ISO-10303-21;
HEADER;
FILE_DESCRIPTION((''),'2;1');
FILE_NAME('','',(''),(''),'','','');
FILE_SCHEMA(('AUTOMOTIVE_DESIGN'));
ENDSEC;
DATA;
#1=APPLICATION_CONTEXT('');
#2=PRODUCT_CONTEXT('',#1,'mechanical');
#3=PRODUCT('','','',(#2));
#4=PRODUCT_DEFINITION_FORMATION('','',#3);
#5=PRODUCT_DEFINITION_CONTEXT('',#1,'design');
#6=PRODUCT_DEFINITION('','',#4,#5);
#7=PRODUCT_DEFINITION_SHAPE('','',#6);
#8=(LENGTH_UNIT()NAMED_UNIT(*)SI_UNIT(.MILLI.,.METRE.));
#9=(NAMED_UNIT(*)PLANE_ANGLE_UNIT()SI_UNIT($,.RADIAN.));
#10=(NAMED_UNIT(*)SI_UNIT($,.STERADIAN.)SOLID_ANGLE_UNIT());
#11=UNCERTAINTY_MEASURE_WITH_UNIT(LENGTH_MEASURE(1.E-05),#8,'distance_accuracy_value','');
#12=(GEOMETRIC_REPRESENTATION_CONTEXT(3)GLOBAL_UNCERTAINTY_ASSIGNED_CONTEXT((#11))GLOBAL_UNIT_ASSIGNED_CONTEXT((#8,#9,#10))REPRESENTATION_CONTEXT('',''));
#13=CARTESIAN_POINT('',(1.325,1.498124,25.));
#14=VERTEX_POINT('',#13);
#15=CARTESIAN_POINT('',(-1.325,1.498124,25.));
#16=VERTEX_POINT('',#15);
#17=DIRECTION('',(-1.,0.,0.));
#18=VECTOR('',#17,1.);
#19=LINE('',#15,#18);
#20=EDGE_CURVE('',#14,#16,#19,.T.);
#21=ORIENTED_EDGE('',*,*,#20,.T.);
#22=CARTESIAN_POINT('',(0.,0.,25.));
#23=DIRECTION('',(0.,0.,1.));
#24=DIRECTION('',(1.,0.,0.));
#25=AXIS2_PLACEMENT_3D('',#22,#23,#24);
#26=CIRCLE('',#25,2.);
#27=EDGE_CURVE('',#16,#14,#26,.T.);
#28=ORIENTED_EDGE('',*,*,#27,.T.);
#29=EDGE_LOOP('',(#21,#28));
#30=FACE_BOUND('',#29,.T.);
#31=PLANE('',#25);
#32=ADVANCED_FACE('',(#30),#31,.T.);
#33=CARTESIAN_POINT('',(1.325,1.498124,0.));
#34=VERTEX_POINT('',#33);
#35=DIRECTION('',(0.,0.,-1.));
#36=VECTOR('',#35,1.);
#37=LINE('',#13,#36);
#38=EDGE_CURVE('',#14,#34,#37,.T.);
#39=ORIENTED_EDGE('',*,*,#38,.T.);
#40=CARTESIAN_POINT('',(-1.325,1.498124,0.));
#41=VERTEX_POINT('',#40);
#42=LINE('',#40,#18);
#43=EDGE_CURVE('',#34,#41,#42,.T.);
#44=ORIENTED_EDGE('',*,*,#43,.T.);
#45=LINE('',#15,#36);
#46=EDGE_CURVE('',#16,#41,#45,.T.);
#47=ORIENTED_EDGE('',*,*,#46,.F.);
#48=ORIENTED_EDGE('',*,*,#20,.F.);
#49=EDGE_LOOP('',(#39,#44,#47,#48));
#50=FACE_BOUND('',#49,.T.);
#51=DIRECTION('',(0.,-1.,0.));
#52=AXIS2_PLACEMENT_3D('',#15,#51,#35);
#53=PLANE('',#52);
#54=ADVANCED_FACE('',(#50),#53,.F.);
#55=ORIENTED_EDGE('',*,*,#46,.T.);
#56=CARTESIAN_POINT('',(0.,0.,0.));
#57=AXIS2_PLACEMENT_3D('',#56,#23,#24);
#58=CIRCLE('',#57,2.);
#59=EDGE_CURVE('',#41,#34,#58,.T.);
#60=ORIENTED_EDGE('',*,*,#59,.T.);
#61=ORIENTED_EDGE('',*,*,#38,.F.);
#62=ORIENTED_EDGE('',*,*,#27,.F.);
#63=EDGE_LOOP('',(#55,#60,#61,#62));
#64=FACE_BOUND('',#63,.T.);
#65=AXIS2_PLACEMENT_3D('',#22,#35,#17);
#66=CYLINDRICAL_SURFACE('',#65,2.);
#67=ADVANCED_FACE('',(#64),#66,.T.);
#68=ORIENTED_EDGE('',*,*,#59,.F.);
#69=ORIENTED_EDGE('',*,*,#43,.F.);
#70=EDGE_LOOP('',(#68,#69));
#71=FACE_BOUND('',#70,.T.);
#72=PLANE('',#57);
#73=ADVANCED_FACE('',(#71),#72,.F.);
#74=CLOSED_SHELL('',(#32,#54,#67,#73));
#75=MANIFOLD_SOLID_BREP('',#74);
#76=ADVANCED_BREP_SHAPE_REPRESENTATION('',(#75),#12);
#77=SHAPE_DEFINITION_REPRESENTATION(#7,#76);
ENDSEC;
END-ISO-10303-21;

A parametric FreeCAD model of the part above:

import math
import FreeCAD as App
import Part
import Sketcher
from FreeCAD import Vector

doc = App.newDocument("Part")
body = doc.addObject("PartDesign::Body", "Body")

sketch1 = body.newObject("Sketcher::SketchObject", "Sketch")
sketch1.AttachmentSupport = (doc.getObject("XY_Plane"), [""])
sketch1.MapMode = "FlatFace"
sketch1.addGeometry(Part.LineSegment(Vector(1.3, 1.5, 0), Vector(-1.3, 1.5, 0)), False)
sketch1.addGeometry(Part.ArcOfCircle(Part.Circle(Vector(0, 0, 0), Vector(0, 0, 1), 2), math.radians(131), math.radians(409)), False)
sketch1.addConstraint(Sketcher.Constraint("Coincident", 0, 1, 1, 2))
sketch1.addConstraint(Sketcher.Constraint("Coincident", 1, 1, 0, 2))
sketch1.addConstraint(Sketcher.Constraint("Horizontal", 0))
sketch1.addConstraint(Sketcher.Constraint("Coincident", 1, 3, -1, 1))
sketch1.addConstraint(Sketcher.Constraint("Radius", 1, 2.0))
sketch1.addConstraint(Sketcher.Constraint("DistanceX", 0, 2, 0, 1, 2.65))
pad1 = body.newObject("PartDesign::Pad", "Pad")
pad1.Profile = sketch1
pad1.Length = 25

doc.recompute()
